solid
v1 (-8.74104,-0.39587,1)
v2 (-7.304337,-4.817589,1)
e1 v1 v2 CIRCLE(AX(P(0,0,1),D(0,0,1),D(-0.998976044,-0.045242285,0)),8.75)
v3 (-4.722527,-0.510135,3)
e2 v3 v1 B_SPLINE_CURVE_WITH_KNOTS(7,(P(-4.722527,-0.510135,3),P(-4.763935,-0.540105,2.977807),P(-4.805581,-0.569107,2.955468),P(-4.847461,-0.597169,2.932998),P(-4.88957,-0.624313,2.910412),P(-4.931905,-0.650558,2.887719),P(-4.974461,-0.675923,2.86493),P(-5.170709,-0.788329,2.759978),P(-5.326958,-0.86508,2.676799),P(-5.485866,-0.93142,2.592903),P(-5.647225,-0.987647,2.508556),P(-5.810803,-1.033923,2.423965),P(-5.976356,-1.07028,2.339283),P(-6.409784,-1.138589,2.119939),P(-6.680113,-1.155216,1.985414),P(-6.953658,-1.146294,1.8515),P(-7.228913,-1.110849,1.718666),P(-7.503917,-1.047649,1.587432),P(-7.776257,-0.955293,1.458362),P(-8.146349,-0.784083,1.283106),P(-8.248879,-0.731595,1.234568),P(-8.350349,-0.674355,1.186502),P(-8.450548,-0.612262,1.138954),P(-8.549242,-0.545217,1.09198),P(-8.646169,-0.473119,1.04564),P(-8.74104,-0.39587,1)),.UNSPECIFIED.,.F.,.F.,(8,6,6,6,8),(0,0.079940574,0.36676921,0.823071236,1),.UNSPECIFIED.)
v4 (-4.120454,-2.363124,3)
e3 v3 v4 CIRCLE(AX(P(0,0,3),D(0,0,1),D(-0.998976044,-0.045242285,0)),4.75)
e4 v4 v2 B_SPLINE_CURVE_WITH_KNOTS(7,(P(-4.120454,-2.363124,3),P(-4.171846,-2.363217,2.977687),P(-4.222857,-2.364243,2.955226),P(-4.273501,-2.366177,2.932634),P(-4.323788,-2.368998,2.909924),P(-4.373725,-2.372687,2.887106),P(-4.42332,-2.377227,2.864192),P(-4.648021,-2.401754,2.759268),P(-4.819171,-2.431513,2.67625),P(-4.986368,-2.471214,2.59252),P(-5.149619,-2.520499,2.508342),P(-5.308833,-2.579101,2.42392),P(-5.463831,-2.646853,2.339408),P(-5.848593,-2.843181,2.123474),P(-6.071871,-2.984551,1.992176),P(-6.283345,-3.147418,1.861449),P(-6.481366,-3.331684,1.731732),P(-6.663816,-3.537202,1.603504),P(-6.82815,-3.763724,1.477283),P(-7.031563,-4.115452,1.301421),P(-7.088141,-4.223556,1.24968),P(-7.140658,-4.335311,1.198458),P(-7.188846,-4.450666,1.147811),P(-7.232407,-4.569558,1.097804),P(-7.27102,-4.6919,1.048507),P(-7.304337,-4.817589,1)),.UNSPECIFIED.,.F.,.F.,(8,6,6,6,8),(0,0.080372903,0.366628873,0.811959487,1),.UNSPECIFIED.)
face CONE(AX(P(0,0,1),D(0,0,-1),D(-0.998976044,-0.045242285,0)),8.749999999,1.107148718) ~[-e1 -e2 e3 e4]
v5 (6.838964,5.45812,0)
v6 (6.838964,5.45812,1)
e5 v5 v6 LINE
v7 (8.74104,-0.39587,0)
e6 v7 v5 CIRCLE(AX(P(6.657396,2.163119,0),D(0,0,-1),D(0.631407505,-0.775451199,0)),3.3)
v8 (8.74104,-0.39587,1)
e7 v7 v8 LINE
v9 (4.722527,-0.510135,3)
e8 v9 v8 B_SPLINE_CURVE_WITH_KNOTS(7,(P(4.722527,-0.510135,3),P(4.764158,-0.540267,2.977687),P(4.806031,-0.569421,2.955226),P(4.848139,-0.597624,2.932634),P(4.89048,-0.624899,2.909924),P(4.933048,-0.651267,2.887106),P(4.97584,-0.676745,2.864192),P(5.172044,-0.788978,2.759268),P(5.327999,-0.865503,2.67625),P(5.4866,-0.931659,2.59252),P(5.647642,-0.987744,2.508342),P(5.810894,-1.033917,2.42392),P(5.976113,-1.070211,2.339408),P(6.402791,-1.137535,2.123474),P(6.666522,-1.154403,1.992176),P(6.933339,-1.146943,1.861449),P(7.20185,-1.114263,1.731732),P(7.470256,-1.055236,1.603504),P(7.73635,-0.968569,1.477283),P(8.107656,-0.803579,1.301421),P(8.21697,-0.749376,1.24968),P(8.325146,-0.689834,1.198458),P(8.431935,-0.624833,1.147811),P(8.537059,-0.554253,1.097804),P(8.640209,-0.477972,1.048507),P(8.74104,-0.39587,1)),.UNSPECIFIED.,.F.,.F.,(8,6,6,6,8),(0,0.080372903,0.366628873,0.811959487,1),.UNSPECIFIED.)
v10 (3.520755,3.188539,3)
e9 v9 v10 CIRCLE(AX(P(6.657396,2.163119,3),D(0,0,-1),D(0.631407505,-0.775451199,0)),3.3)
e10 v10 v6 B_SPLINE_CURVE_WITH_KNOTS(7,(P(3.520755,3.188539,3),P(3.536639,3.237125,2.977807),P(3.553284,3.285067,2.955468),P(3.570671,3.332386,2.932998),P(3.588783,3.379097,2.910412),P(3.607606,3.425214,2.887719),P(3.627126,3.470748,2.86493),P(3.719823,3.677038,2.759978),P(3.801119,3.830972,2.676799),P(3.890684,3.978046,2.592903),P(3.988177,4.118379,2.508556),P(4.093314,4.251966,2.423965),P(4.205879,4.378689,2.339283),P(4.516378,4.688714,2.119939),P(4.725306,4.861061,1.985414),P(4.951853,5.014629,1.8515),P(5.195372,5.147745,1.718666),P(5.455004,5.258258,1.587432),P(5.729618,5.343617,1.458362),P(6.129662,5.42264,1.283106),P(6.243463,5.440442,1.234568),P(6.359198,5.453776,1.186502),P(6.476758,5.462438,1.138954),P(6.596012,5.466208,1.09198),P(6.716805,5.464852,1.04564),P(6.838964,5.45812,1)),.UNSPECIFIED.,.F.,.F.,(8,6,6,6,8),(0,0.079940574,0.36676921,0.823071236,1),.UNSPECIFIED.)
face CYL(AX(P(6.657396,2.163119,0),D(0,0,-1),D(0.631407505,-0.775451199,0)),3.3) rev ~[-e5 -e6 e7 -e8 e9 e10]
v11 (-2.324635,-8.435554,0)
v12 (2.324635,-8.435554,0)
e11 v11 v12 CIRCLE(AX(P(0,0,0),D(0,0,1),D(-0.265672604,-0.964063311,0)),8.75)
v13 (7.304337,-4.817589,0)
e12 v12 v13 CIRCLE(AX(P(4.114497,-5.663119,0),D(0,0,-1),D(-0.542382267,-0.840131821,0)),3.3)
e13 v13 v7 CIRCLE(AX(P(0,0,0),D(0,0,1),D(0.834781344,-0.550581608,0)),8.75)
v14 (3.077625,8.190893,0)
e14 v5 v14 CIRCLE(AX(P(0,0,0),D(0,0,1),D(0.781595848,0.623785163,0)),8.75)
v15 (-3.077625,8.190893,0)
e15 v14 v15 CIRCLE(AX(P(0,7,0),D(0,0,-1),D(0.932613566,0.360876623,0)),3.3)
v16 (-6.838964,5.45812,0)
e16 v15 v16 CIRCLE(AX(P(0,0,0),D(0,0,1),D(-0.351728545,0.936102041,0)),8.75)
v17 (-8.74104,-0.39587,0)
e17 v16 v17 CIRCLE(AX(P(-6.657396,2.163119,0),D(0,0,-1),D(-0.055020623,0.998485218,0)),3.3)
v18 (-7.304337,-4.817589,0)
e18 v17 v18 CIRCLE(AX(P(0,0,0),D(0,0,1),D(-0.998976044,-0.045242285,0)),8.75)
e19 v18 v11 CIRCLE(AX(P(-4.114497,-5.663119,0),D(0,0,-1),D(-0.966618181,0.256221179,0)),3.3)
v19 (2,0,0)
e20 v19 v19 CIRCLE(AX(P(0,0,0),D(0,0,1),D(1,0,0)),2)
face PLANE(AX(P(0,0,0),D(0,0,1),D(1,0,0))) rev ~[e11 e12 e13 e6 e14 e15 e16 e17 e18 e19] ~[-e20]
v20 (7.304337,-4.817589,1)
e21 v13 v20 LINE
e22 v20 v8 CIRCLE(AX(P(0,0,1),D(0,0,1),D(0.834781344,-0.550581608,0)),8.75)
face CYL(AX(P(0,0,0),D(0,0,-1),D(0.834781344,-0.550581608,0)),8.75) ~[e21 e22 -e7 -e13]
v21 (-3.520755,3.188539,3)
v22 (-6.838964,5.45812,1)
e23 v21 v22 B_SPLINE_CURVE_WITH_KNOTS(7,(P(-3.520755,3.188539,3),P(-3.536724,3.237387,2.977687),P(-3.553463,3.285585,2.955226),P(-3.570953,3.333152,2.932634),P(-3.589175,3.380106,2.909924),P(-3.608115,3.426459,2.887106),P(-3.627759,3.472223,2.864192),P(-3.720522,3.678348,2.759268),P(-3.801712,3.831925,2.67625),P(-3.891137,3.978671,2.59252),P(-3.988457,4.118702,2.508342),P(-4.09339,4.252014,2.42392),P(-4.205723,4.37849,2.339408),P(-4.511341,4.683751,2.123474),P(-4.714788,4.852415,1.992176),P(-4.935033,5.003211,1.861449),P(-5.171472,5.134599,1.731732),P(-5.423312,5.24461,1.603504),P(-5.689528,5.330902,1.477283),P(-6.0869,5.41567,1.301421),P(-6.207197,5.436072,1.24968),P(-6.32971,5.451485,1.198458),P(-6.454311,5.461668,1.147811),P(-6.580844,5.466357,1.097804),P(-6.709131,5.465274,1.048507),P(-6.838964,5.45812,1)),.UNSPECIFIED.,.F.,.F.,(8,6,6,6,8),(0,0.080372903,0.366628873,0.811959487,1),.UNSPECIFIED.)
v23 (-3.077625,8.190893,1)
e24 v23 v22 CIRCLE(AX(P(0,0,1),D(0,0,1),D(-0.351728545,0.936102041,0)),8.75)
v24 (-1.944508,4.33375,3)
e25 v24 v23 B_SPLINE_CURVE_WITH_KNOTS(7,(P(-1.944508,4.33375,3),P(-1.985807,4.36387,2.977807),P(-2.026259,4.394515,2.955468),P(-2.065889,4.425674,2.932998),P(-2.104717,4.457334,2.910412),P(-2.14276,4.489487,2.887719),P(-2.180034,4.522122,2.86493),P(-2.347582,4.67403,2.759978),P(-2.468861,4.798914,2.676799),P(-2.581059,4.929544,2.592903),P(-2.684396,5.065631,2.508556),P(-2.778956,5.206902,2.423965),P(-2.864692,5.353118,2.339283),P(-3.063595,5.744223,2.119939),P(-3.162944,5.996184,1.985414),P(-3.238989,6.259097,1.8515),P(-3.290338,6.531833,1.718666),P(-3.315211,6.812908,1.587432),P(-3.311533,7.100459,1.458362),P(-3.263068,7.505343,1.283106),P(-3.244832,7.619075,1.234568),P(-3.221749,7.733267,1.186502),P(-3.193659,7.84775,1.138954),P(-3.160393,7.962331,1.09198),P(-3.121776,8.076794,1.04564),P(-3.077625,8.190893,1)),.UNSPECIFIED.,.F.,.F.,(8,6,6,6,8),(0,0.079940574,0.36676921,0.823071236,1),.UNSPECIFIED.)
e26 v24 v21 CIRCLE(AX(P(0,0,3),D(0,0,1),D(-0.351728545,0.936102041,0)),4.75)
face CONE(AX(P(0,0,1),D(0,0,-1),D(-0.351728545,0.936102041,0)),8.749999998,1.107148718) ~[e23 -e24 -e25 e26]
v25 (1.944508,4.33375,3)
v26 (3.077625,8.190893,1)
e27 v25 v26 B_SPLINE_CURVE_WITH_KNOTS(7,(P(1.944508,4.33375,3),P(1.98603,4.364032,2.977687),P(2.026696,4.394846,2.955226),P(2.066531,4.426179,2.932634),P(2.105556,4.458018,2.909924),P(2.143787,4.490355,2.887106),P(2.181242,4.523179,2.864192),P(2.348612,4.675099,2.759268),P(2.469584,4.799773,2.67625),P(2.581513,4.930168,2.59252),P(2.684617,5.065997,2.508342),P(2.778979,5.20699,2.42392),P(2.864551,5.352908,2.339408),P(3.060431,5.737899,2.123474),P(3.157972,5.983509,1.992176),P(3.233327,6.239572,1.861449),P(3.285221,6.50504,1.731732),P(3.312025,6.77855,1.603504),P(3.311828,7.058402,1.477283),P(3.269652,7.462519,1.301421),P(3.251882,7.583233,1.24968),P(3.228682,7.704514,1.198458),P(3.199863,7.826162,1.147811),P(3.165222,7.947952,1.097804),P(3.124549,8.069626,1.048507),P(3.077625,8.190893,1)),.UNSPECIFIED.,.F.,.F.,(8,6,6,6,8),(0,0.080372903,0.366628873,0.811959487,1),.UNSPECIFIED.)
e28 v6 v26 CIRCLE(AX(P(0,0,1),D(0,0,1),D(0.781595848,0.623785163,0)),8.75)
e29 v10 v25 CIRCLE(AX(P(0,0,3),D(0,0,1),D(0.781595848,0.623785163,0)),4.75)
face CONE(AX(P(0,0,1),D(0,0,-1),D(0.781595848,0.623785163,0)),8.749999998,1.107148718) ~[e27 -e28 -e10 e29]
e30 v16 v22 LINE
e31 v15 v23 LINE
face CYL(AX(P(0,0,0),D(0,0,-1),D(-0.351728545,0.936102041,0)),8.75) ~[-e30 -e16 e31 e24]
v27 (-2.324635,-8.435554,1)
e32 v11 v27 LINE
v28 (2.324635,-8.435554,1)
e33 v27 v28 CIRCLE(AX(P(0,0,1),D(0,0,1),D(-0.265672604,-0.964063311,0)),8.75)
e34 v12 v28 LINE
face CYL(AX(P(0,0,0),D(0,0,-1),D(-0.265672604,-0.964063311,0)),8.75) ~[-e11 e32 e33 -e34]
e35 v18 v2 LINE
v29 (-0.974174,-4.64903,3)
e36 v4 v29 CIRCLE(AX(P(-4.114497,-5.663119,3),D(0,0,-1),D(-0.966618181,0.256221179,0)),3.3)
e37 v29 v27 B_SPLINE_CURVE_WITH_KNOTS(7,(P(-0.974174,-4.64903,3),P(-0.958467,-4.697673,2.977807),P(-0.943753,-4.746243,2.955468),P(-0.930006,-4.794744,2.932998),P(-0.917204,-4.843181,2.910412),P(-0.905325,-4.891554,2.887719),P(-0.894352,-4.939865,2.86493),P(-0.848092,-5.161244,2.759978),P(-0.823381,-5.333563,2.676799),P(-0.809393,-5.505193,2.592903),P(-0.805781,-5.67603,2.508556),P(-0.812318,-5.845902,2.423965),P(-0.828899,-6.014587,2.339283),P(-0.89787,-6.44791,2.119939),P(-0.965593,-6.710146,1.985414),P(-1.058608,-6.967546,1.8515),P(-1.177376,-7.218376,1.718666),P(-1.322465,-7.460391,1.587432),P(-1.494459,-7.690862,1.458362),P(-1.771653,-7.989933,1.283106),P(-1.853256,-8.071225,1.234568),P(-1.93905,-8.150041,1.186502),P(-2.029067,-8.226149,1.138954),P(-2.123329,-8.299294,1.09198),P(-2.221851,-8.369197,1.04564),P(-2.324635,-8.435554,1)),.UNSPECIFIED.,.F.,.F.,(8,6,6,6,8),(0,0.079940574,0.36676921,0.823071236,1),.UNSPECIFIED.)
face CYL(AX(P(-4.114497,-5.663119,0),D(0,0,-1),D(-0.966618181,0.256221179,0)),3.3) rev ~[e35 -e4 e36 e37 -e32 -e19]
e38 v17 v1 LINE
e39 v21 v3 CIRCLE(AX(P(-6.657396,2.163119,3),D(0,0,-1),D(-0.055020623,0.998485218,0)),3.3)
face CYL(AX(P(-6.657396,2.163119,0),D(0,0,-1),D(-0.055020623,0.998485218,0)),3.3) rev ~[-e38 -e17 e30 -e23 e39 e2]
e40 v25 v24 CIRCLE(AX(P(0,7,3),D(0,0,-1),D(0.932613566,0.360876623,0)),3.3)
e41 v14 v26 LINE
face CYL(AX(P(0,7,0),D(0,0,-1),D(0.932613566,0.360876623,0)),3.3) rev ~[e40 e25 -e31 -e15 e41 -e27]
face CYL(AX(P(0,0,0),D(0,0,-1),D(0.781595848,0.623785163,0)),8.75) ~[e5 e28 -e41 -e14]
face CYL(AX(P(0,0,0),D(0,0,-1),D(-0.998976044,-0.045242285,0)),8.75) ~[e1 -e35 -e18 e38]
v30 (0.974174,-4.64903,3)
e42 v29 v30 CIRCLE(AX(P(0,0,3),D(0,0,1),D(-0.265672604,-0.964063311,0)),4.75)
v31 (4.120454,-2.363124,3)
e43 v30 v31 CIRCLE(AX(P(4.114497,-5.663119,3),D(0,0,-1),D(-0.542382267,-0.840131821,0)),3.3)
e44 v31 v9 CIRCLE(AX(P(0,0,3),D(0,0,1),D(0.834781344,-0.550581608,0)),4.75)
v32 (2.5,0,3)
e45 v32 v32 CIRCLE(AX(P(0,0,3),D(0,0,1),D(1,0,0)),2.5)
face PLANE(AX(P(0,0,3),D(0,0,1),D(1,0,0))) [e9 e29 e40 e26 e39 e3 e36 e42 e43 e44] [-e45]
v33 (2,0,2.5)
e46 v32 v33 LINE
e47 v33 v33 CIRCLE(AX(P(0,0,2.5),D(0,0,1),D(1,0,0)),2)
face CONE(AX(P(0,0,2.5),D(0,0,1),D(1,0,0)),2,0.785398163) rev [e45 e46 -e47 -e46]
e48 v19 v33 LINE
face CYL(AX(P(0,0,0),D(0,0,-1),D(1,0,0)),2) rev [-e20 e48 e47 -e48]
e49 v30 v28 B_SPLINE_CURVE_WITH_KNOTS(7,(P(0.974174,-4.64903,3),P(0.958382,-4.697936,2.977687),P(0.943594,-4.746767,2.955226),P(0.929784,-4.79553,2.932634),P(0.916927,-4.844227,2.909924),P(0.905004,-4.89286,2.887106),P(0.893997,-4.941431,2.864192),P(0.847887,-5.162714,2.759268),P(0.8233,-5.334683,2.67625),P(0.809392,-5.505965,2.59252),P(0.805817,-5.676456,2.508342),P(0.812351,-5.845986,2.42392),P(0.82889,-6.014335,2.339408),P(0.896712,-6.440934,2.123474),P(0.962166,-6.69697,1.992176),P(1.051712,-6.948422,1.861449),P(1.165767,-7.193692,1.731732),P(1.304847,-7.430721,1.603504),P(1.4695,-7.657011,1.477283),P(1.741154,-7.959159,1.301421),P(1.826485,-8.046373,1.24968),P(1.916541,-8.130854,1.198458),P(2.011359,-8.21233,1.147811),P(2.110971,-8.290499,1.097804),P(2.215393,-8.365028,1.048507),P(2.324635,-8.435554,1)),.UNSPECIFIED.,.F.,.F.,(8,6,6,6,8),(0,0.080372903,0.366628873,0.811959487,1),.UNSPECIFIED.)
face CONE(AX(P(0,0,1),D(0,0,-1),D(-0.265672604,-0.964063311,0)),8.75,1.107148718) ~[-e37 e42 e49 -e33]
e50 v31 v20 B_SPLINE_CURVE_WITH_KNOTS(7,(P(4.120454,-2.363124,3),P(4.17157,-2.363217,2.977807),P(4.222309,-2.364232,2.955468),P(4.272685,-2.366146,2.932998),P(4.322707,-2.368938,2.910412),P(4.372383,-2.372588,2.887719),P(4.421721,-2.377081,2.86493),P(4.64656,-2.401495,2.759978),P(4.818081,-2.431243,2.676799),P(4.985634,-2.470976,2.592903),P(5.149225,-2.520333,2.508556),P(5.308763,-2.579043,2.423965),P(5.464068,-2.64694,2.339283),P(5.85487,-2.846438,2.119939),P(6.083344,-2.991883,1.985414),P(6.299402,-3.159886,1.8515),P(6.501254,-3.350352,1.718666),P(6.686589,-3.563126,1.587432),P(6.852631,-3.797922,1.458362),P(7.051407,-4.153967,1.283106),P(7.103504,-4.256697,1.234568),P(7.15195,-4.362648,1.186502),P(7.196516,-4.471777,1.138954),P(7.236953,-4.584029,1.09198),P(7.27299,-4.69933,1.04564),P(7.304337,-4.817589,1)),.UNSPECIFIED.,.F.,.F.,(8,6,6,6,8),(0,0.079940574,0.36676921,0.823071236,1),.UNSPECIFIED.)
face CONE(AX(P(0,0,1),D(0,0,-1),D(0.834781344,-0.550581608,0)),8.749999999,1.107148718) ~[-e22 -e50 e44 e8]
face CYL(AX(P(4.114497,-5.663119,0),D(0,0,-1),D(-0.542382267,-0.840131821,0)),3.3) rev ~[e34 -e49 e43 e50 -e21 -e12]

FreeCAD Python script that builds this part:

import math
import FreeCAD as App
import Part
import Sketcher


def edges_at(feature, points):
    """Names of the edges that pass closest to the given points."""
    edges = feature.Shape.Edges
    near = lambda p: min(range(len(edges)), key=lambda i: edges[i].distToShape(Part.Vertex(*p))[0])
    return sorted({f"Edge{near(p) + 1}" for p in points})

doc = App.newDocument("Part")
body = doc.addObject("PartDesign::Body", "Body")

sketch1 = doc.addObject("Sketcher::SketchObject", "Sketch")
body.addObject(sketch1)
sketch1.AttachmentSupport = (doc.XY_Plane, [""])
sketch1.MapMode = "FlatFace"
sketch1.addGeometry(Part.ArcOfCircle(Part.Circle(App.Vector(-6.657396, 2.163119, 0), App.Vector(0, 0, 1), 3.3), math.radians(-129.154042), math.radians(93.154042)), False)
sketch1.addGeometry(Part.ArcOfCircle(Part.Circle(App.Vector(0, 0, 0), App.Vector(0, 0, 1), 8.75), math.radians(-177.406923), math.radians(-146.593077)), False)
sketch1.addGeometry(Part.ArcOfCircle(Part.Circle(App.Vector(-4.114497, -5.663119, 0), App.Vector(0, 0, 1), 3.3), math.radians(-57.154042), math.radians(165.154042)), False)
sketch1.addGeometry(Part.ArcOfCircle(Part.Circle(App.Vector(0, 0, 0), App.Vector(0, 0, 1), 8.75), math.radians(-105.406923), math.radians(-74.593077)), False)
sketch1.addGeometry(Part.ArcOfCircle(Part.Circle(App.Vector(4.114497, -5.663119, 0), App.Vector(0, 0, 1), 3.3), math.radians(14.845958), math.radians(237.154042)), False)
sketch1.addGeometry(Part.ArcOfCircle(Part.Circle(App.Vector(0, 0, 0), App.Vector(0, 0, 1), 8.75), math.radians(-33.406923), math.radians(-2.593077)), False)
sketch1.addGeometry(Part.ArcOfCircle(Part.Circle(App.Vector(6.657396, 2.163119, 0), App.Vector(0, 0, 1), 3.3), math.radians(86.845958), math.radians(309.154042)), False)
sketch1.addGeometry(Part.ArcOfCircle(Part.Circle(App.Vector(0, 0, 0), App.Vector(0, 0, 1), 8.75), math.radians(38.593077), math.radians(69.406923)), False)
sketch1.addGeometry(Part.ArcOfCircle(Part.Circle(App.Vector(0, 7, 0), App.Vector(0, 0, 1), 3.3), math.radians(158.845958), math.radians(381.154042)), False)
sketch1.addGeometry(Part.ArcOfCircle(Part.Circle(App.Vector(0, 0, 0), App.Vector(0, 0, 1), 8.75), math.radians(110.593077), math.radians(141.406923)), False)
sketch1.addGeometry(Part.Circle(App.Vector(0, 0, 0), App.Vector(0, 0, 1), 2), False)
sketch1.addConstraint(Sketcher.Constraint("Coincident", 0, 1, 1, 1))
sketch1.addConstraint(Sketcher.Constraint("Coincident", 1, 2, 2, 2))
sketch1.addConstraint(Sketcher.Constraint("Coincident", 2, 1, 3, 1))
sketch1.addConstraint(Sketcher.Constraint("Coincident", 3, 2, 4, 2))
sketch1.addConstraint(Sketcher.Constraint("Coincident", 4, 1, 5, 1))
sketch1.addConstraint(Sketcher.Constraint("Coincident", 5, 2, 6, 2))
sketch1.addConstraint(Sketcher.Constraint("Coincident", 6, 1, 7, 1))
sketch1.addConstraint(Sketcher.Constraint("Coincident", 7, 2, 8, 2))
sketch1.addConstraint(Sketcher.Constraint("Coincident", 8, 1, 9, 1))
sketch1.addConstraint(Sketcher.Constraint("Coincident", 9, 2, 0, 2))
sketch1.addConstraint(Sketcher.Constraint("Coincident", 1, 3, -1, 1))
sketch1.addConstraint(Sketcher.Constraint("Coincident", 3, 3, -1, 1))
sketch1.addConstraint(Sketcher.Constraint("Coincident", 5, 3, -1, 1))
sketch1.addConstraint(Sketcher.Constraint("Coincident", 7, 3, -1, 1))
sketch1.addConstraint(Sketcher.Constraint("Coincident", 9, 3, -1, 1))
sketch1.addConstraint(Sketcher.Constraint("Coincident", 10, 3, -1, 1))
sketch1.addConstraint(Sketcher.Constraint("Equal", 0, 2))
sketch1.addConstraint(Sketcher.Constraint("Equal", 1, 3))
sketch1.addConstraint(Sketcher.Constraint("Equal", 2, 4))
sketch1.addConstraint(Sketcher.Constraint("Equal", 3, 5))
sketch1.addConstraint(Sketcher.Constraint("Equal", 4, 6))
sketch1.addConstraint(Sketcher.Constraint("Equal", 5, 7))
sketch1.addConstraint(Sketcher.Constraint("Equal", 6, 8))
sketch1.addConstraint(Sketcher.Constraint("Equal", 7, 9))
sketch1.addConstraint(Sketcher.Constraint("Symmetric", 2, 3, 4, 3, -2))
sketch1.addConstraint(Sketcher.Constraint("Symmetric", 0, 3, 6, 3, -2))
sketch1.addConstraint(Sketcher.Constraint("PointOnObject", 8, 3, -2))
sketch1.addConstraint(Sketcher.Constraint("Diameter", 10, 4.0))
sketch1.addConstraint(Sketcher.Constraint("Radius", 0, 3.3))
sketch1.addConstraint(Sketcher.Constraint("Radius", 1, 8.75))
sketch1.addConstraint(Sketcher.Constraint("DistanceY", -1, 1, 8, 3, 7.0))
sketch1.addConstraint(Sketcher.Constraint("DistanceY", 6, 3, 6, 1, 3.295001))
sketch1.addConstraint(Sketcher.Constraint("DistanceX", 0, 3, 2, 3, 2.542899))
sketch1.addConstraint(Sketcher.Constraint("DistanceX", 1, 2, 2, 1, 4.979701))
sketch1.addConstraint(Sketcher.Constraint("DistanceY", -1, 1, 0, 3, 2.163119))
pad1 = doc.addObject("PartDesign::Pad", "Pad")
body.addObject(pad1)
pad1.Profile = sketch1
pad1.Length = 3
doc.recompute()

chamfer = doc.addObject("PartDesign::Chamfer", "Chamfer")
body.addObject(chamfer)
chamfer.Base = (pad1, edges_at(pad1, [
    (-8.322, -2.704, 3),
    (0, -8.75, 3),
    (8.322, -2.704, 3),
    (5.143, 7.079, 3),
    (-5.143, 7.079, 3),
]))
chamfer.ChamferType = "Two distances"
chamfer.Size = 4
chamfer.Size2 = 2
chamfer.FlipDirection = True
doc.recompute()

chamfer2 = doc.addObject("PartDesign::Chamfer", "Chamfer001")
body.addObject(chamfer2)
chamfer2.Base = (chamfer, edges_at(chamfer, [(-2, 0, 3)]))
chamfer2.Size = 0.5

doc.recompute()
